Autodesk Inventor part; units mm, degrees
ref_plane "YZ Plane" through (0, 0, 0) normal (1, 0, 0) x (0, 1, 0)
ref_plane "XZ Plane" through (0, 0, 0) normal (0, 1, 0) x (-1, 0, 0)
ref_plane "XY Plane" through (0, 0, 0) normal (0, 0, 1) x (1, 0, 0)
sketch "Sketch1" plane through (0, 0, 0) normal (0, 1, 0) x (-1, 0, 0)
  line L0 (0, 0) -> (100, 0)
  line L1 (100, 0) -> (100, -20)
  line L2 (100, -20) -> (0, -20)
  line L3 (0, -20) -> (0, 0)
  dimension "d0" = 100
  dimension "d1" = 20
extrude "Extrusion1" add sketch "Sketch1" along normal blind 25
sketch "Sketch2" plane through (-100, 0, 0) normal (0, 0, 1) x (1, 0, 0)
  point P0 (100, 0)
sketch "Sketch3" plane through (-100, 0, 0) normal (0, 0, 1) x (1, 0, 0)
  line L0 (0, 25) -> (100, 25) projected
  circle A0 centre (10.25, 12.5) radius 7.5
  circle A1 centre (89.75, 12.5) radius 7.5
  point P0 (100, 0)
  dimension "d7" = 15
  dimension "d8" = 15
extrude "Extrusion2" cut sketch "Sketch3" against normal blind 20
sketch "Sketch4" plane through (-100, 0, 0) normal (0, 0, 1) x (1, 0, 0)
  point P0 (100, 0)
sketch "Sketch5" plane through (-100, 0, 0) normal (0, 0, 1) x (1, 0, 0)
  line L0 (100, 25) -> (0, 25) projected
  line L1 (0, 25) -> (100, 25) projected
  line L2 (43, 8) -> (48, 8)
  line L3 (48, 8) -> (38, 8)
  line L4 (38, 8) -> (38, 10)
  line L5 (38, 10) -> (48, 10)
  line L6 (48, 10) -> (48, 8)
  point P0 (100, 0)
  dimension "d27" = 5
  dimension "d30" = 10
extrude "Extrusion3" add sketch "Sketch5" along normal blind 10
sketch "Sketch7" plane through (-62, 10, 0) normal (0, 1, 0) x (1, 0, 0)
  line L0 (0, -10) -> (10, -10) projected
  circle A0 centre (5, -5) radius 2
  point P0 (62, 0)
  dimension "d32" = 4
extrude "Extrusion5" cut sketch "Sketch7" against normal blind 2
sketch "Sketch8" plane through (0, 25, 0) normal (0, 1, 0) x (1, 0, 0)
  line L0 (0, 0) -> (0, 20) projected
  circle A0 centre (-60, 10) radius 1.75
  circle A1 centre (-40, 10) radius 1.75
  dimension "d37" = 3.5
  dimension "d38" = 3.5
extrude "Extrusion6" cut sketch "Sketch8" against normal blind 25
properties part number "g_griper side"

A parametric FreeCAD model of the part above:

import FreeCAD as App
import Part
import Sketcher

doc = App.newDocument("Part")
body = doc.addObject("PartDesign::Body", "Body")

# Sketch on XZ plane
sketch1 = body.newObject("Sketcher::SketchObject", "Sketch")
sketch1.AttachmentSupport = (doc.getObject("XZ_Plane"), [""])
sketch1.MapMode = "FlatFace"
sketch1.addGeometry([
    Part.LineSegment(App.Vector(-100, 0, 0), App.Vector(0, 0, 0)),
    Part.LineSegment(App.Vector(0, 0, 0), App.Vector(0, -20, 0)),
    Part.LineSegment(App.Vector(0, -20, 0), App.Vector(-100, -20, 0)),
    Part.LineSegment(App.Vector(-100, -20, 0), App.Vector(-100, 0, 0)),
], False)
sketch1.addConstraint([
    Sketcher.Constraint("Coincident", 0, 2, 1, 1),
    Sketcher.Constraint("Coincident", 1, 2, 2, 1),
    Sketcher.Constraint("Coincident", 2, 2, 3, 1),
    Sketcher.Constraint("Coincident", 3, 2, 0, 1),
    Sketcher.Constraint("Horizontal", 0),
    Sketcher.Constraint("Vertical", 1),
    Sketcher.Constraint("Horizontal", 2),
    Sketcher.Constraint("Vertical", 3),
    Sketcher.Constraint("Coincident", 0, 2, -1, 1),
    Sketcher.Constraint("DistanceX", 0, 1, 0, 2, 100.0),
    Sketcher.Constraint("DistanceY", 1, 2, 1, 1, 20.0),
])
pad1 = body.newObject("PartDesign::Pad", "Pad")
pad1.Profile = sketch1
pad1.Length = 25
pad1.Reversed = True

# Sketch on XY plane
sketch2 = body.newObject("Sketcher::SketchObject", "Sketch001")
sketch2.AttachmentSupport = (doc.getObject("XY_Plane"), [""])
sketch2.MapMode = "FlatFace"
sketch2.addGeometry([
    Part.Circle(App.Vector(-89.75, 12.5, 0), App.Vector(0, 0, 1), 7.5),
    Part.Circle(App.Vector(-10.25, 12.5, 0), App.Vector(0, 0, 1), 7.5),
], False)
sketch2.addConstraint([
    Sketcher.Constraint("Equal", 0, 1),
    Sketcher.Constraint("Horizontal", 0, 3, 1, 3),
    Sketcher.Constraint("Diameter", 0, 15.0),
    Sketcher.Constraint("DistanceY", -1, 1, 0, 3, 12.5),
    Sketcher.Constraint("DistanceX", 0, 3, 1, 3, 79.5),
    Sketcher.Constraint("DistanceX", 0, 3, -1, 1, 89.75),
])
pocket1 = body.newObject("PartDesign::Pocket", "Pocket")
pocket1.Profile = sketch2
pocket1.Length = 20

# Sketch on XY plane
sketch3 = body.newObject("Sketcher::SketchObject", "Sketch002")
sketch3.AttachmentSupport = (doc.getObject("XY_Plane"), [""])
sketch3.MapMode = "FlatFace"
sketch3.addGeometry([
    Part.LineSegment(App.Vector(-62, 8, 0), App.Vector(-52, 8, 0)),
    Part.LineSegment(App.Vector(-52, 8, 0), App.Vector(-52, 10, 0)),
    Part.LineSegment(App.Vector(-52, 10, 0), App.Vector(-62, 10, 0)),
    Part.LineSegment(App.Vector(-62, 10, 0), App.Vector(-62, 8, 0)),
], False)
sketch3.addConstraint([
    Sketcher.Constraint("Coincident", 0, 2, 1, 1),
    Sketcher.Constraint("Coincident", 1, 2, 2, 1),
    Sketcher.Constraint("Coincident", 2, 2, 3, 1),
    Sketcher.Constraint("Coincident", 3, 2, 0, 1),
    Sketcher.Constraint("Horizontal", 0),
    Sketcher.Constraint("Vertical", 1),
    Sketcher.Constraint("Horizontal", 2),
    Sketcher.Constraint("Vertical", 3),
    Sketcher.Constraint("DistanceX", 0, 1, 0, 2, 10.0),
    Sketcher.Constraint("DistanceY", -1, 1, 1, 2, 10.0),
    Sketcher.Constraint("DistanceY", 1, 1, 1, 2, 2.0),
    Sketcher.Constraint("DistanceX", 0, 2, -1, 1, 52.0),
])
pad2 = body.newObject("PartDesign::Pad", "Pad001")
pad2.Profile = sketch3
pad2.Length = 10

# Sketch on XZ plane
sketch4 = body.newObject("Sketcher::SketchObject", "Sketch003")
sketch4.AttachmentSupport = (doc.getObject("XZ_Plane"), [""])
sketch4.MapMode = "FlatFace"
sketch4.AttachmentOffset = App.Placement(App.Vector(0, 0, -10), App.Rotation())
sketch4.addGeometry(Part.Circle(App.Vector(-57, 5, 0), App.Vector(0, 0, 1), 2), False)
sketch4.addConstraint([
    Sketcher.Constraint("Diameter", 0, 4.0),
    Sketcher.Constraint("DistanceX", 0, 3, -1, 1, 57.0),
    Sketcher.Constraint("DistanceY", -1, 1, 0, 3, 5.0),
])
pocket2 = body.newObject("PartDesign::Pocket", "Pocket001")
pocket2.Profile = sketch4
pocket2.Length = 2
pocket2.Reversed = True

# Sketch on XZ plane
sketch5 = body.newObject("Sketcher::SketchObject", "Sketch004")
sketch5.AttachmentSupport = (doc.getObject("XZ_Plane"), [""])
sketch5.MapMode = "FlatFace"
sketch5.AttachmentOffset = App.Placement(App.Vector(0, 0, -25), App.Rotation())
sketch5.addGeometry([
    Part.Circle(App.Vector(-60, -10, 0), App.Vector(0, 0, 1), 1.75),
    Part.Circle(App.Vector(-40, -10, 0), App.Vector(0, 0, 1), 1.75),
], False)
sketch5.addConstraint([
    Sketcher.Constraint("Equal", 0, 1),
    Sketcher.Constraint("Horizontal", 0, 3, 1, 3),
    Sketcher.Constraint("Diameter", 0, 3.5),
    Sketcher.Constraint("DistanceX", 0, 3, -1, 1, 60.0),
    Sketcher.Constraint("DistanceY", 0, 3, -1, 1, 10.0),
    Sketcher.Constraint("DistanceX", 1, 3, -1, 1, 40.0),
])
pocket3 = body.newObject("PartDesign::Pocket", "Pocket002")
pocket3.Profile = sketch5
pocket3.Length = 25
pocket3.Reversed = True

doc.recompute()
